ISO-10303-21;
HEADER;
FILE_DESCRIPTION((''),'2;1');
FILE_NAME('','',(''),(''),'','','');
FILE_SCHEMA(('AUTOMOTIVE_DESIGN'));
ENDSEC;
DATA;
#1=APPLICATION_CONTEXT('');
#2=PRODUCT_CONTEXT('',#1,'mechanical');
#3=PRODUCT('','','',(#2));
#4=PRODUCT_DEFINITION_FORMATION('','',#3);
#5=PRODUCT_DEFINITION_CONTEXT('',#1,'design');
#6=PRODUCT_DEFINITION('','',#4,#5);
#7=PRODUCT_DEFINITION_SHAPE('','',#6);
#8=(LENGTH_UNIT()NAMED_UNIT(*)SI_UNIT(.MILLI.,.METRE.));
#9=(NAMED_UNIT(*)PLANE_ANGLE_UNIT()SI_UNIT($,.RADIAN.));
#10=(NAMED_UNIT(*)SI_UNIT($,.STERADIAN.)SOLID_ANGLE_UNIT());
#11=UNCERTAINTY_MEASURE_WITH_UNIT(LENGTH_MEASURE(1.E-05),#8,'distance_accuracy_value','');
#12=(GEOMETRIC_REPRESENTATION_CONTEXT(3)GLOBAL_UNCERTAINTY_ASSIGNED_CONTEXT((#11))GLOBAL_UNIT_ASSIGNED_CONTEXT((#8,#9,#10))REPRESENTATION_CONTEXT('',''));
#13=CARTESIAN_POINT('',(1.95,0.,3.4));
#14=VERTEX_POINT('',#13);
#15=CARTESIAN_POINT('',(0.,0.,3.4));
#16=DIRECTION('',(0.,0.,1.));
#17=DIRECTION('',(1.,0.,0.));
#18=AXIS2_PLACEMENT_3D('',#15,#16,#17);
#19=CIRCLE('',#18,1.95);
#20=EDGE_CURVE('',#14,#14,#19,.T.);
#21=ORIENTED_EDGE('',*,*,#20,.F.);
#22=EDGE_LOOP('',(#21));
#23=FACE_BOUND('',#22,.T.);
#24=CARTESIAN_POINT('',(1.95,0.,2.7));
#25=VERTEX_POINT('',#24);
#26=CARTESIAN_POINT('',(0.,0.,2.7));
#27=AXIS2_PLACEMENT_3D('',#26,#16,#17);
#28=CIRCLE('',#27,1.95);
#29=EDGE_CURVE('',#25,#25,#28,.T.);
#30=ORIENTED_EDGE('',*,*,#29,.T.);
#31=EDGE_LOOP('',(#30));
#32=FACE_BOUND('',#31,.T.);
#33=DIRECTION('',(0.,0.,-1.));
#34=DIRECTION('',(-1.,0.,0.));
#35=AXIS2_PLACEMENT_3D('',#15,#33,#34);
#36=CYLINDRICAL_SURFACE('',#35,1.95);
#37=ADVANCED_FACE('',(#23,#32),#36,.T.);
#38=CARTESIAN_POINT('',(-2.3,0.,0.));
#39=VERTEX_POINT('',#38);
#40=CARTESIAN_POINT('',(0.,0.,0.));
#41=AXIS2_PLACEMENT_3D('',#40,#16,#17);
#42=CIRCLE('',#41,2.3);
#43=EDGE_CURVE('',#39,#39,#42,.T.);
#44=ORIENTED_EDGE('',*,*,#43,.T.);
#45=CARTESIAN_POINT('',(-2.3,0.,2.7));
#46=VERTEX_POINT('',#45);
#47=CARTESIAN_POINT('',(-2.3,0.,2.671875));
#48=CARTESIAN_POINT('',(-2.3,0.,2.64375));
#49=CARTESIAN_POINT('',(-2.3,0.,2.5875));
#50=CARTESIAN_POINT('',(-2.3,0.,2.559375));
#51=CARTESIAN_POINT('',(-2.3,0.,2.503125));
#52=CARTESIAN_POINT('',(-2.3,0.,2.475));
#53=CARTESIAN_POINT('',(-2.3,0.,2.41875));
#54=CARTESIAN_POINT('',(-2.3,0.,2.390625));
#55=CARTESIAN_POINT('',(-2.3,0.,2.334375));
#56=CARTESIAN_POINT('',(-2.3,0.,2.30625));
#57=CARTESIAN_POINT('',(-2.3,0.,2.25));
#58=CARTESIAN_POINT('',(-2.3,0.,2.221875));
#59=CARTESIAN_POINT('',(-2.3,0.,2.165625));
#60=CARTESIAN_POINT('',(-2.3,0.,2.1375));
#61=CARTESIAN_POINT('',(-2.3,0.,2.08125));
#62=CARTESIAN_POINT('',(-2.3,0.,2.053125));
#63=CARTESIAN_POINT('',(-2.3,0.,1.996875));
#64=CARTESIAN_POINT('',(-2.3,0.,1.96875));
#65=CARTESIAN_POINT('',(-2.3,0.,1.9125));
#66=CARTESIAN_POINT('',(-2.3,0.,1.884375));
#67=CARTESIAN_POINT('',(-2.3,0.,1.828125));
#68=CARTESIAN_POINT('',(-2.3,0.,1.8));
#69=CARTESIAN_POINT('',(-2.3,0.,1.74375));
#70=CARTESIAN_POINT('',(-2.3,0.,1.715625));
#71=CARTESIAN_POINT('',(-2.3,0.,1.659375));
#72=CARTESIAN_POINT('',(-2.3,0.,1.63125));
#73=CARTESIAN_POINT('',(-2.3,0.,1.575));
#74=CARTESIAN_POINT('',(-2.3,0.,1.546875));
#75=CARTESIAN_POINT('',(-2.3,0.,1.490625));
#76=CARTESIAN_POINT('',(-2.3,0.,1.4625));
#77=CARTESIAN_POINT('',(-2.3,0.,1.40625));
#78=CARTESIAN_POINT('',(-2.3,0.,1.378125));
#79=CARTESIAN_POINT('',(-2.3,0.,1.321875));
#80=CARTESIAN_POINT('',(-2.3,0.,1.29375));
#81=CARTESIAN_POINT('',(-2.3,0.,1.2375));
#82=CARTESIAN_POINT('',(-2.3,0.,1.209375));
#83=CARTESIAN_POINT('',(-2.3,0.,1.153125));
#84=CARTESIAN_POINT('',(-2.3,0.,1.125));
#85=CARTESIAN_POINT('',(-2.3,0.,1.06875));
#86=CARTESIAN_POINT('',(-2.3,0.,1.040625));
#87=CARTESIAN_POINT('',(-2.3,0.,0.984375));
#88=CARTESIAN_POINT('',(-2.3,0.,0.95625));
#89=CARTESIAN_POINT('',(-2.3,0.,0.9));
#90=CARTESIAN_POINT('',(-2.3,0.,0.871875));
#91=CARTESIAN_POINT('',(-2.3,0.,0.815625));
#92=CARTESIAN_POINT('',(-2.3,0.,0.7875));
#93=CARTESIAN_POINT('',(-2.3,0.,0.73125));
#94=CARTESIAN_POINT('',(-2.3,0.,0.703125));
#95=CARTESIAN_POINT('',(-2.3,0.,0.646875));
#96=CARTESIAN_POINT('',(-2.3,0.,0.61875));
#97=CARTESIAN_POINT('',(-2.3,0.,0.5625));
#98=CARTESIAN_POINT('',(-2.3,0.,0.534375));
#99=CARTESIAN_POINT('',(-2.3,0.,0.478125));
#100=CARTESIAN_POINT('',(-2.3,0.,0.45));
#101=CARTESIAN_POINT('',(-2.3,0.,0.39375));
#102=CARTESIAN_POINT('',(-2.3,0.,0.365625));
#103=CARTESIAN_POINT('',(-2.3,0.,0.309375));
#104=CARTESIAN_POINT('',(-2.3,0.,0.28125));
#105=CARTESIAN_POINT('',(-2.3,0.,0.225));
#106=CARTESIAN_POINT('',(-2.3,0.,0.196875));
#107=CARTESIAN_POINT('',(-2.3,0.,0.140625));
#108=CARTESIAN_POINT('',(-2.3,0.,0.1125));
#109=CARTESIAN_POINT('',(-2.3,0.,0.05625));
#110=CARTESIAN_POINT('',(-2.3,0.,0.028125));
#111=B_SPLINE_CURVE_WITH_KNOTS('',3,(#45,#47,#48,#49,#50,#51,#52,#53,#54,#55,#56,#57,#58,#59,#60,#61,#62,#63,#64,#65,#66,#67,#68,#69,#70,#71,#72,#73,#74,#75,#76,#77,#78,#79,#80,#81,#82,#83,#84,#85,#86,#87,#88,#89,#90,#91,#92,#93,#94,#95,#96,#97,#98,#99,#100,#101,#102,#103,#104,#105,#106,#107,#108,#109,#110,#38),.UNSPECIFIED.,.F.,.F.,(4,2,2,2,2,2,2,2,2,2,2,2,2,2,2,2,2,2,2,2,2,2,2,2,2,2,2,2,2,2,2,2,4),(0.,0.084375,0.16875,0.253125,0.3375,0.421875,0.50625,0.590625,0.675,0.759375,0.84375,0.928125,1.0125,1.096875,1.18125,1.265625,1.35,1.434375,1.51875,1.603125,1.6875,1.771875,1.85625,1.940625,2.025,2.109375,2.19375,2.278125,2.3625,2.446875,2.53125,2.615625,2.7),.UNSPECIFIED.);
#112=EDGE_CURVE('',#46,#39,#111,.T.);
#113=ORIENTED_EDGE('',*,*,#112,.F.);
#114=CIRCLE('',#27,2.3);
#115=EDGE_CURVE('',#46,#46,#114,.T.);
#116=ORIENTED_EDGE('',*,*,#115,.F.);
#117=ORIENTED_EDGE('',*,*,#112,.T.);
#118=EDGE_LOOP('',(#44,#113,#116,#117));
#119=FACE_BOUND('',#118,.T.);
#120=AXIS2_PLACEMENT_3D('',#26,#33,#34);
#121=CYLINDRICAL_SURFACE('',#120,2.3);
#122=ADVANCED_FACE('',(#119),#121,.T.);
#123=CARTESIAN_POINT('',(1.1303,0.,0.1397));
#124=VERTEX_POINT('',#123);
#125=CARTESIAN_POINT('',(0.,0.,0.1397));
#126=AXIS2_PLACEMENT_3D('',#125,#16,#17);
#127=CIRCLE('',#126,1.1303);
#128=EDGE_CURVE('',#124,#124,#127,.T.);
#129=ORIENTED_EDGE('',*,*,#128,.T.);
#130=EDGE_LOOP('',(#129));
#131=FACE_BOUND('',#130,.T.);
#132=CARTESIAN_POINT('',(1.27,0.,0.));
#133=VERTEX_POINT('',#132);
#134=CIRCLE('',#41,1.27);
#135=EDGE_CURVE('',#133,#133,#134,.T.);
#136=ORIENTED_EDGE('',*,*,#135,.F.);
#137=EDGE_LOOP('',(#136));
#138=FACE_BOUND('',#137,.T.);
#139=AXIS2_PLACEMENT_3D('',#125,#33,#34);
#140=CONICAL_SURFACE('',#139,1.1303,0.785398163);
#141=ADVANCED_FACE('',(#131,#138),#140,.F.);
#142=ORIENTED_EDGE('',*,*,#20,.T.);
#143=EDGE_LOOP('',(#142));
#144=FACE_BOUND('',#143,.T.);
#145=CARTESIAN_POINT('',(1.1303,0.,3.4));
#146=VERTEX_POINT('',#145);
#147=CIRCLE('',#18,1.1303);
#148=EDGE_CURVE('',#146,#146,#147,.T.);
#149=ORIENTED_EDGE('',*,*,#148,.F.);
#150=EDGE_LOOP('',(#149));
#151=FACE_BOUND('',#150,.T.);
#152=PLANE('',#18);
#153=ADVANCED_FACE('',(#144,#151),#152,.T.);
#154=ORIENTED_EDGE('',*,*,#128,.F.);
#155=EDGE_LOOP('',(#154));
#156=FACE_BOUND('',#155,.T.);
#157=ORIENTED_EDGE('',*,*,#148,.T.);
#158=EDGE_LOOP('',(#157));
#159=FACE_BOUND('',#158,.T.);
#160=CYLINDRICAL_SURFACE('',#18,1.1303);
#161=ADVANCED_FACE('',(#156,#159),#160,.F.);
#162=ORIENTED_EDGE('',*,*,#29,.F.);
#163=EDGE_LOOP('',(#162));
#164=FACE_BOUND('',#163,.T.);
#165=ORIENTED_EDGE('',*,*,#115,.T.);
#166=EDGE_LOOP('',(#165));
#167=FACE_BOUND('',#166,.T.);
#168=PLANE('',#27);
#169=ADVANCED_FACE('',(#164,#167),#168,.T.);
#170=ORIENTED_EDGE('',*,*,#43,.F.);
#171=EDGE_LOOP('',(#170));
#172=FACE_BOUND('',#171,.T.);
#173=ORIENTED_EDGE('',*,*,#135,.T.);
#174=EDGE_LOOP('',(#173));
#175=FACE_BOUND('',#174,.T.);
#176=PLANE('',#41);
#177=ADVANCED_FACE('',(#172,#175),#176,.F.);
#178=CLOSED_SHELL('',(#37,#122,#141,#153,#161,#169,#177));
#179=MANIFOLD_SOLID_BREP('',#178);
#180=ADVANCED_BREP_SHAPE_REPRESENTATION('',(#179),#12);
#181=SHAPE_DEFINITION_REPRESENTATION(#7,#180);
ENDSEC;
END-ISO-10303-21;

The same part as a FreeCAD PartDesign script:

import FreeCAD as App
import Part
import Sketcher
from FreeCAD import Vector
Q = App.Units.Quantity


def add_polygon(sketch, points):
    """Adds a closed chain of lines whose ends are joined by coincident constraints."""
    first, n = sketch.GeometryCount, len(points)
    for a, b in zip(points, points[1:] + points[:1]):
        sketch.addGeometry(Part.LineSegment(App.Vector(*a, 0), App.Vector(*b, 0)), False)
    for i in range(n):
        sketch.addConstraint(Sketcher.Constraint("Coincident", first + i, 2, first + (i + 1) % n, 1))

doc = App.newDocument("Part")
body = doc.addObject("PartDesign::Body", "Body")

sketch1 = body.newObject("Sketcher::SketchObject", "Sketch")
sketch1.AttachmentSupport = (doc.getObject("XY_Plane"), [""])
sketch1.MapMode = "FlatFace"
sketch1.addGeometry(Part.Circle(Vector(0, 0, 0), Vector(0, 0, 1), 2.3), False)
sketch1.addConstraint([
    Sketcher.Constraint("Coincident", 0, 3, -1, 1),
    Sketcher.Constraint("Diameter", 0, 4.6),
])
pad1 = body.newObject("PartDesign::Pad", "Pad")
pad1.Profile = sketch1
pad1.Length = 2.7

sketch2 = body.newObject("Sketcher::SketchObject", "Sketch001")
sketch2.AttachmentSupport = (doc.getObject("XY_Plane"), [""])
sketch2.MapMode = "FlatFace"
sketch2.AttachmentOffset = App.Placement(Vector(0, 0, 2.7), App.Rotation())
sketch2.addGeometry(Part.Circle(Vector(0, 0, 0), Vector(0, 0, 1), 1.9), False)
sketch2.addConstraint([
    Sketcher.Constraint("Coincident", 0, 3, -1, 1),
    Sketcher.Constraint("Diameter", 0, 3.9),
])
pad2 = body.newObject("PartDesign::Pad", "Pad001")
pad2.Profile = sketch2
pad2.Length = 0.7

sketch3 = body.newObject("Sketcher::SketchObject", "Sketch002")
sketch3.AttachmentSupport = (doc.getObject("YZ_Plane"), [""])
sketch3.MapMode = "FlatFace"
add_polygon(sketch3, [(0, 0), (0, 3.4), (-1.13, 3.4), (-1.13, 0.14), (-1.27, 0)])
sketch3.addConstraint([
    Sketcher.Constraint("Vertical", 0),
    Sketcher.Constraint("Horizontal", 1),
    Sketcher.Constraint("Vertical", 2),
    Sketcher.Constraint("Horizontal", 4),
    Sketcher.Constraint("Coincident", 4, 2, -1, 1),
    Sketcher.Constraint("Angle", 3, Q("-135 deg")),
    Sketcher.Constraint("DistanceY", 0, 1, 0, 2, 3.4),
    Sketcher.Constraint("DistanceX", 4, 1, 4, 2, 1.27),
    Sketcher.Constraint("DistanceX", 1, 2, 1, 1, 1.1303),
])
groove = body.newObject("PartDesign::Groove", "Groove")
groove.Profile = sketch3
groove.ReferenceAxis = (sketch3, ["V_Axis"])
groove.Angle = 360

doc.recompute()
